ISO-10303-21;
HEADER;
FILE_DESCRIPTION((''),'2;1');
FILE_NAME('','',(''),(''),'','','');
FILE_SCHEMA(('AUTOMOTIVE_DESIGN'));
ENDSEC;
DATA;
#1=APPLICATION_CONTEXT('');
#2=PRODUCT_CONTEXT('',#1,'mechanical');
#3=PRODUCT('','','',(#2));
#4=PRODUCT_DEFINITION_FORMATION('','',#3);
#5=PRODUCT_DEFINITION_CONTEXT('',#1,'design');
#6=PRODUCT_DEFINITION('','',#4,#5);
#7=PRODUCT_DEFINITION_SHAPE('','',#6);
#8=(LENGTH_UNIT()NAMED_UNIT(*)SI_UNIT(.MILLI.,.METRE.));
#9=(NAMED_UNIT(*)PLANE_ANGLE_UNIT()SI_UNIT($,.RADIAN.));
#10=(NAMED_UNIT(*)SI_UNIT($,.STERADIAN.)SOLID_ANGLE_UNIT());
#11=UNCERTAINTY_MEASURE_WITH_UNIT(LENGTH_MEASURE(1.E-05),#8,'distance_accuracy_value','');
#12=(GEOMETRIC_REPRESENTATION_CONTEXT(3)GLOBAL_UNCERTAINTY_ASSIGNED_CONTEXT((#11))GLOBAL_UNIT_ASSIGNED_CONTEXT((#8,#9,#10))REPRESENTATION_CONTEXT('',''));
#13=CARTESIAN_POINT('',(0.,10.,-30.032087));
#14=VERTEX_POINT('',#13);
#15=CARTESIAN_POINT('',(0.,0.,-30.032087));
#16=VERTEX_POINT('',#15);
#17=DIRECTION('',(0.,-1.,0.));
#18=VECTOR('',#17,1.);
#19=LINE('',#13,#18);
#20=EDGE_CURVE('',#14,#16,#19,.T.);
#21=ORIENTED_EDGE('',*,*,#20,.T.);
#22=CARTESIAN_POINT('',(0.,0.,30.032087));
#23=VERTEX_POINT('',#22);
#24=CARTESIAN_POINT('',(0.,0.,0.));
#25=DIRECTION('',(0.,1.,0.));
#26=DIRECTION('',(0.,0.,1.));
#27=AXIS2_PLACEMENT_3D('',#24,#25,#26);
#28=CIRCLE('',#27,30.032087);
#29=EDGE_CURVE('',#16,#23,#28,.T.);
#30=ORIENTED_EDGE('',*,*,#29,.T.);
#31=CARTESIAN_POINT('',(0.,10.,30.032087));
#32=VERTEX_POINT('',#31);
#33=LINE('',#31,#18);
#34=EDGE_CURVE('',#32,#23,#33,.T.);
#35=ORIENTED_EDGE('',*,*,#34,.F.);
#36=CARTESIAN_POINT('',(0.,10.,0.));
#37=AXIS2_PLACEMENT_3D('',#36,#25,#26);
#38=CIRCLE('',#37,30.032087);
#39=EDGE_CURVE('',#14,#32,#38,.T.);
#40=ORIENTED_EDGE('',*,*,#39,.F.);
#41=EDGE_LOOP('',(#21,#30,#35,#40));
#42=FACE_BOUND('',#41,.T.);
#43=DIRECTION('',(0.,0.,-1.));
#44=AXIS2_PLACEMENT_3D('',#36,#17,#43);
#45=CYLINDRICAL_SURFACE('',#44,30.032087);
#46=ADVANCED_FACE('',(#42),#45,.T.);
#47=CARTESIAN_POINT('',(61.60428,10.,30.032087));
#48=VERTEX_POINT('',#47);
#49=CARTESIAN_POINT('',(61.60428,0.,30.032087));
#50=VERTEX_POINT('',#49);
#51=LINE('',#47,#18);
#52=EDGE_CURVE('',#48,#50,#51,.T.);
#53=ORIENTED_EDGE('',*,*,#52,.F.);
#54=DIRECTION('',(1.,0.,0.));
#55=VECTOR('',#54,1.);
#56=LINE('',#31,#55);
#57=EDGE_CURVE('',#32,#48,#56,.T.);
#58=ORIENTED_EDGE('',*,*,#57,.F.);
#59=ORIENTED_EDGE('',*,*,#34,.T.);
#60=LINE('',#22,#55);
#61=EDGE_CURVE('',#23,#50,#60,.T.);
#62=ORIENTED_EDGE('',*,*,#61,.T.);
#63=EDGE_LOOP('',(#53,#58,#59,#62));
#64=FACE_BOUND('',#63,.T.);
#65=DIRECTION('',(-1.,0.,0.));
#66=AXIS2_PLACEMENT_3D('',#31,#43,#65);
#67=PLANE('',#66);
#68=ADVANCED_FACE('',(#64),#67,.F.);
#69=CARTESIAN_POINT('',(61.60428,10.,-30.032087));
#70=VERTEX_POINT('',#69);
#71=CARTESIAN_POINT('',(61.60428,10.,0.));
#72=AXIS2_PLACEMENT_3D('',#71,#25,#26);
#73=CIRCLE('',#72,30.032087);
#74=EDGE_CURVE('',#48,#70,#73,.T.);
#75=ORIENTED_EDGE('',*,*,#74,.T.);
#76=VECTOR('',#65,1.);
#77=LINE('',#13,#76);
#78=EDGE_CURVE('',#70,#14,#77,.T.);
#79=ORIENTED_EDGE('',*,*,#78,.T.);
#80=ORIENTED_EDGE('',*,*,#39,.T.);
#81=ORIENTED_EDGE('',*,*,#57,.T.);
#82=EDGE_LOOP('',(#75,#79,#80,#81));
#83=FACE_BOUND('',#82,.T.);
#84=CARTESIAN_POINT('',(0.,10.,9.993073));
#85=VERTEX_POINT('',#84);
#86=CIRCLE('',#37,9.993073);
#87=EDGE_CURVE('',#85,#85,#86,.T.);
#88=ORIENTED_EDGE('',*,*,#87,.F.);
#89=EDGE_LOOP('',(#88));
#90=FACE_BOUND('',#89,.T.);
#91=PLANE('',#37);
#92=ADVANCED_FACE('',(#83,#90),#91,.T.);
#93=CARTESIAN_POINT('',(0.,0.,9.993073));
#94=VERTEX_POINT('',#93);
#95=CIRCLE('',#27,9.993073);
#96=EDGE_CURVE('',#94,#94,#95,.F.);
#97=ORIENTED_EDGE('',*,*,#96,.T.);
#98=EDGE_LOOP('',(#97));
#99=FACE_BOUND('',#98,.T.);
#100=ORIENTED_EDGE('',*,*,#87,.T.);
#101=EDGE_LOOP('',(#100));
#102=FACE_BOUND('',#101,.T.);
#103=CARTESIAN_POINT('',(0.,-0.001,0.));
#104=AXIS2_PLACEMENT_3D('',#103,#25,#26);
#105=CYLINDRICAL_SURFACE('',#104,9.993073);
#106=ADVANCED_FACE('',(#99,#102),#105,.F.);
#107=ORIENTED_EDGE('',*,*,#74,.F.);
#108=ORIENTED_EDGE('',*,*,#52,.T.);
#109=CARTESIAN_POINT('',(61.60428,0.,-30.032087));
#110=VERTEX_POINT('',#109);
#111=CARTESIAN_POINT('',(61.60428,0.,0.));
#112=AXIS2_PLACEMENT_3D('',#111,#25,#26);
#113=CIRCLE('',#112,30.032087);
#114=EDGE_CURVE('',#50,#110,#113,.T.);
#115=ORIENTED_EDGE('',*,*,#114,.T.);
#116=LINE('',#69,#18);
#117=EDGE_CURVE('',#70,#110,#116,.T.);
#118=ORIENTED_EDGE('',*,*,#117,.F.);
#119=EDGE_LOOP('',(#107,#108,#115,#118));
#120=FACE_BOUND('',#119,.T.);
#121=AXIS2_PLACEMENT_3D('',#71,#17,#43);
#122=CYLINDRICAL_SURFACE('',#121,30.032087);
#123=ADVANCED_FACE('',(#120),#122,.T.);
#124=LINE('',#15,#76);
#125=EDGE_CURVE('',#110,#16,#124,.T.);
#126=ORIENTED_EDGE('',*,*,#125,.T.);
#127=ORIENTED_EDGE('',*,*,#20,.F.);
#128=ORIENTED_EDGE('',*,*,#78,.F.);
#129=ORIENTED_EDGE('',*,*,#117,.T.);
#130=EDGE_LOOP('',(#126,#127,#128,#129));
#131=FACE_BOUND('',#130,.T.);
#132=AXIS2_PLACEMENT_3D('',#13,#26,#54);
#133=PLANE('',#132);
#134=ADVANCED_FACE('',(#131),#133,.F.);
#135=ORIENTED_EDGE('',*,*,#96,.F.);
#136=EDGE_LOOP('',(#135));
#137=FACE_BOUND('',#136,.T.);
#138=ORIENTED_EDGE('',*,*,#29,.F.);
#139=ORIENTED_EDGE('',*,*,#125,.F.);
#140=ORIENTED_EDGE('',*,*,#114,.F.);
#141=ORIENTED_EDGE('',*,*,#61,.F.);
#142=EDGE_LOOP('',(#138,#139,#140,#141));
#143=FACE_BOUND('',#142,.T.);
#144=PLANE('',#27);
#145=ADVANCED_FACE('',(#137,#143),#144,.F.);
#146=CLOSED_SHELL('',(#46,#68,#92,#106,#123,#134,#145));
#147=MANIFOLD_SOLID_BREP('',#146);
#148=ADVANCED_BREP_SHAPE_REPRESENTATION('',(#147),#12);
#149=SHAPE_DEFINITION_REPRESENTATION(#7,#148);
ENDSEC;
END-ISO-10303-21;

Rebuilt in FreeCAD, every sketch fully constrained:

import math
import FreeCAD as App
import Part
import Sketcher
from FreeCAD import Vector

doc = App.newDocument("Part")
params = doc.addObject("Spreadsheet::Sheet", "Params")
for row, (alias, value) in enumerate([
    ("pad1_length", "10 mm"),
], start=1):
    params.set(f"A{row}", alias)
    params.set(f"B{row}", "=" + value)
    params.setAlias(f"B{row}", alias)

body = doc.addObject("PartDesign::Body", "Body")

sketch1 = body.newObject("Sketcher::SketchObject", "Sketch")
sketch1.AttachmentSupport = (doc.getObject("XZ_Plane"), [""])
sketch1.MapMode = "FlatFace"
sketch1.addGeometry([
    Part.LineSegment(Vector(61.60428, -30.032087, 0), Vector(0, -30.032087, 0)),
    Part.ArcOfCircle(Part.Circle(Vector(0, 0, 0), Vector(0, 0, 1), 30.032087), math.radians(90), math.radians(270)),
    Part.LineSegment(Vector(0, 30.032087, 0), Vector(61.60428, 30.032087, 0)),
    Part.ArcOfCircle(Part.Circle(Vector(61.60428, 0, 0), Vector(0, 0, 1), 30.032087), math.radians(-90), math.radians(90)),
], False)
sketch1.addConstraint([
    Sketcher.Constraint("Tangent", 0, 2, 1, 2),
    Sketcher.Constraint("Tangent", 1, 1, 2, 1),
    Sketcher.Constraint("Tangent", 2, 2, 3, 2),
    Sketcher.Constraint("Tangent", 3, 1, 0, 1),
    Sketcher.Constraint("Horizontal", 0),
    Sketcher.Constraint("Horizontal", 2),
    Sketcher.Constraint("Coincident", 1, 3, -1, 1),
    Sketcher.Constraint("Radius", 1, 30.032087),
    Sketcher.Constraint("DistanceX", 0, 2, 0, 1, 61.60428),
])
pad1 = body.newObject("PartDesign::Pad", "Pad")
pad1.Profile = sketch1
pad1.setExpression("Length", "Params.pad1_length")
pad1.Reversed = True

sketch2 = body.newObject("Sketcher::SketchObject", "Sketch001")
sketch2.AttachmentSupport = (doc.getObject("XZ_Plane"), [""])
sketch2.MapMode = "FlatFace"
sketch2.AttachmentOffset = App.Placement(Vector(0, 0, -10), App.Rotation())
sketch2.addGeometry(Part.Circle(Vector(0, 0, 0), Vector(0, 0, 1), 9.993073), False)
sketch2.addConstraint([
    Sketcher.Constraint("Coincident", 0, 3, -1, 1),
    Sketcher.Constraint("Diameter", 0, 19.986146),
])
pocket1 = body.newObject("PartDesign::Pocket", "Pocket")
pocket1.Profile = sketch2
pocket1.Type = "UpToFirst"
pocket1.Reversed = True

doc.recompute()
